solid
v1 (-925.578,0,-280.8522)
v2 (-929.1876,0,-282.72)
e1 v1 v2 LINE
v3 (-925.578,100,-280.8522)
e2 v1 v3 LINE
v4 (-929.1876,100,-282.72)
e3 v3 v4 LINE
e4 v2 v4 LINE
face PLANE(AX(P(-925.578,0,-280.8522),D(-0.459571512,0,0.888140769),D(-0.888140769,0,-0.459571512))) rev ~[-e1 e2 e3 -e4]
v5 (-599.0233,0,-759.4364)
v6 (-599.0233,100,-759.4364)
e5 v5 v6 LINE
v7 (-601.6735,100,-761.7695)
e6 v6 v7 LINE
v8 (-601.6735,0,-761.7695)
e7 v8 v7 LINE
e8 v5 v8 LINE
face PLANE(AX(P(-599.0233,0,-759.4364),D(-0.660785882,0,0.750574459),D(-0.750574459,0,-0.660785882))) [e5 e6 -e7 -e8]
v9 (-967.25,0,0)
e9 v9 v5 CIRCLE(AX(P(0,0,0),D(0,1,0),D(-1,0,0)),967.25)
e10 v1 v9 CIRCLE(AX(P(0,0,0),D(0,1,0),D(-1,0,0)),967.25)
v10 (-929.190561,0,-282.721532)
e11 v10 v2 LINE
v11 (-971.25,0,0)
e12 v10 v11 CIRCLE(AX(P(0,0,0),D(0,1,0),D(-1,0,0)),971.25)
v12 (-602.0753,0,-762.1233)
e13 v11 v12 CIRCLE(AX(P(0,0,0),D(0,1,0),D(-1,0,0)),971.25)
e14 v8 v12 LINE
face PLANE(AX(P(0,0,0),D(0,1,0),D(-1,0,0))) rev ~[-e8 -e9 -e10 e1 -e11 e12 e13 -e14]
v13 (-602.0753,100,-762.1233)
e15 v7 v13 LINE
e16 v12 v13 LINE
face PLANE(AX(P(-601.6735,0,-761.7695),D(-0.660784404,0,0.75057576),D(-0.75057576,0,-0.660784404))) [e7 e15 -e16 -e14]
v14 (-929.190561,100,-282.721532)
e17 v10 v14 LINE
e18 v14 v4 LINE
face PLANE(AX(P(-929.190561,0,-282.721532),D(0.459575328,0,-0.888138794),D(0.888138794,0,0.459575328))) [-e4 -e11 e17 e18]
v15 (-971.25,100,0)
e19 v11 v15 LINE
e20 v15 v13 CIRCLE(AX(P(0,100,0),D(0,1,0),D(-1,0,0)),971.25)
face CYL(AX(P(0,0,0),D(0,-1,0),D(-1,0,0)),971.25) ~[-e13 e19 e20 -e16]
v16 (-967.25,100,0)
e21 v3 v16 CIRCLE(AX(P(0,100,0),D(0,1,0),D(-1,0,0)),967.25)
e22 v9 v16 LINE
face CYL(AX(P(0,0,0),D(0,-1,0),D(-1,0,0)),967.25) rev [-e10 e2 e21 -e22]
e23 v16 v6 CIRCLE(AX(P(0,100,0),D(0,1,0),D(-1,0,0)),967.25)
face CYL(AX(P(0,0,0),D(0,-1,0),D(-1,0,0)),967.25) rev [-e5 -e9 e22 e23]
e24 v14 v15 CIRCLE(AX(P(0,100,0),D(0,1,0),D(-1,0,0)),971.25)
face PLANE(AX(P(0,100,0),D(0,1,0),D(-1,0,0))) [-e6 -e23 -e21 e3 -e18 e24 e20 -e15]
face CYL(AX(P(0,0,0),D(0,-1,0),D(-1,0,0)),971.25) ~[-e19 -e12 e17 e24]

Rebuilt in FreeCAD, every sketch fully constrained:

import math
import FreeCAD as App
import Part
import Sketcher
Q = App.Units.Quantity

doc = App.newDocument("Part")
body = doc.addObject("PartDesign::Body", "Body")

# Sketch on XZ plane
sketch1 = body.newObject("Sketcher::SketchObject", "Sketch")
sketch1.AttachmentSupport = (doc.getObject("XZ_Plane"), [""])
sketch1.MapMode = "FlatFace"
sketch1.addGeometry(Part.Circle(App.Vector(0, 0, 0), App.Vector(0, 0, 1), 971.25), False)
sketch1.addGeometry(Part.Circle(App.Vector(0, 0, 0), App.Vector(0, 0, 1), 967.25), False)
sketch1.addConstraint(Sketcher.Constraint("Coincident", 0, 3, -1, 1))
sketch1.addConstraint(Sketcher.Constraint("Coincident", 1, 3, -1, 1))
sketch1.addConstraint(Sketcher.Constraint("Diameter", 0, 1942.5))
sketch1.addConstraint(Sketcher.Constraint("Diameter", 1, 1934.5))
pad1 = body.newObject("PartDesign::Pad", "Pad")
pad1.Profile = sketch1
pad1.Length = Q("3.9370079 in")
pad1.Reversed = True

# Sketch on XZ plane
sketch2 = body.newObject("Sketcher::SketchObject", "Sketch001")
sketch2.AttachmentSupport = (doc.getObject("XZ_Plane"), [""])
sketch2.MapMode = "FlatFace"
sketch2.addGeometry(Part.LineSegment(App.Vector(-929.1876, -282.72, 0), App.Vector(-929.190561, -282.721532, 0)), False)
sketch2.addGeometry(Part.ArcOfCircle(Part.Circle(App.Vector(0, 0, 0), App.Vector(0, 0, 1), 971.25), math.radians(-163.076753), math.radians(-128.308638)), False)
sketch2.addGeometry(Part.LineSegment(App.Vector(-602.075333, -762.123262, 0), App.Vector(-601.6735, -761.7695, 0)), False)
sketch2.addGeometry(Part.LineSegment(App.Vector(-601.673467, -761.769537, 0), App.Vector(-599.0233, -759.4364, 0)), False)
sketch2.addGeometry(Part.ArcOfCircle(Part.Circle(App.Vector(0, 0, 0), App.Vector(0, 0, 1), 967.25), math.radians(-163.120398), math.radians(-128.26544)), False)
sketch2.addGeometry(Part.LineSegment(App.Vector(-925.578, -280.8522, 0), App.Vector(-929.1876, -282.72, 0)), False)
sketch2.addConstraint(Sketcher.Constraint("Coincident", 0, 2, 1, 1))
sketch2.addConstraint(Sketcher.Constraint("Coincident", 1, 2, 2, 1))
sketch2.addConstraint(Sketcher.Constraint("Coincident", 2, 2, 3, 1))
sketch2.addConstraint(Sketcher.Constraint("Coincident", 3, 2, 4, 2))
sketch2.addConstraint(Sketcher.Constraint("Coincident", 4, 1, 5, 1))
sketch2.addConstraint(Sketcher.Constraint("Coincident", 5, 2, 0, 1))
sketch2.addConstraint(Sketcher.Constraint("Coincident", 1, 3, -1, 1))
sketch2.addConstraint(Sketcher.Constraint("Coincident", 4, 3, -1, 1))
sketch2.addConstraint(Sketcher.Constraint("Parallel", 2, 3))
sketch2.addConstraint(Sketcher.Constraint("Parallel", 0, 5))
sketch2.addConstraint(Sketcher.Constraint("Radius", 1, Q("38.2382 in")))
sketch2.addConstraint(Sketcher.Constraint("Radius", 4, Q("38.0807 in")))
sketch2.addConstraint(Sketcher.Constraint("Distance", 5, Q("0.16 in")))
sketch2.addConstraint(Sketcher.Constraint("Angle", 2, Q("41.3597 deg")))
sketch2.addConstraint(Sketcher.Constraint("Angle", 5, Q("-152.6405 deg")))
sketch2.addConstraint(Sketcher.Constraint("Distance", 3, Q("0.139 in")))
sketch2.addConstraint(Sketcher.Constraint("DistanceX", 0, 2, -1, 1, Q("36.5823 in")))
sketch2.addConstraint(Sketcher.Constraint("DistanceX", 3, 2, -1, 1, Q("23.5836 in")))
pocket1 = body.newObject("PartDesign::Pocket", "Pocket")
pocket1.Profile = sketch2
pocket1.Length = Q("3.9370079 in")

doc.recompute()
